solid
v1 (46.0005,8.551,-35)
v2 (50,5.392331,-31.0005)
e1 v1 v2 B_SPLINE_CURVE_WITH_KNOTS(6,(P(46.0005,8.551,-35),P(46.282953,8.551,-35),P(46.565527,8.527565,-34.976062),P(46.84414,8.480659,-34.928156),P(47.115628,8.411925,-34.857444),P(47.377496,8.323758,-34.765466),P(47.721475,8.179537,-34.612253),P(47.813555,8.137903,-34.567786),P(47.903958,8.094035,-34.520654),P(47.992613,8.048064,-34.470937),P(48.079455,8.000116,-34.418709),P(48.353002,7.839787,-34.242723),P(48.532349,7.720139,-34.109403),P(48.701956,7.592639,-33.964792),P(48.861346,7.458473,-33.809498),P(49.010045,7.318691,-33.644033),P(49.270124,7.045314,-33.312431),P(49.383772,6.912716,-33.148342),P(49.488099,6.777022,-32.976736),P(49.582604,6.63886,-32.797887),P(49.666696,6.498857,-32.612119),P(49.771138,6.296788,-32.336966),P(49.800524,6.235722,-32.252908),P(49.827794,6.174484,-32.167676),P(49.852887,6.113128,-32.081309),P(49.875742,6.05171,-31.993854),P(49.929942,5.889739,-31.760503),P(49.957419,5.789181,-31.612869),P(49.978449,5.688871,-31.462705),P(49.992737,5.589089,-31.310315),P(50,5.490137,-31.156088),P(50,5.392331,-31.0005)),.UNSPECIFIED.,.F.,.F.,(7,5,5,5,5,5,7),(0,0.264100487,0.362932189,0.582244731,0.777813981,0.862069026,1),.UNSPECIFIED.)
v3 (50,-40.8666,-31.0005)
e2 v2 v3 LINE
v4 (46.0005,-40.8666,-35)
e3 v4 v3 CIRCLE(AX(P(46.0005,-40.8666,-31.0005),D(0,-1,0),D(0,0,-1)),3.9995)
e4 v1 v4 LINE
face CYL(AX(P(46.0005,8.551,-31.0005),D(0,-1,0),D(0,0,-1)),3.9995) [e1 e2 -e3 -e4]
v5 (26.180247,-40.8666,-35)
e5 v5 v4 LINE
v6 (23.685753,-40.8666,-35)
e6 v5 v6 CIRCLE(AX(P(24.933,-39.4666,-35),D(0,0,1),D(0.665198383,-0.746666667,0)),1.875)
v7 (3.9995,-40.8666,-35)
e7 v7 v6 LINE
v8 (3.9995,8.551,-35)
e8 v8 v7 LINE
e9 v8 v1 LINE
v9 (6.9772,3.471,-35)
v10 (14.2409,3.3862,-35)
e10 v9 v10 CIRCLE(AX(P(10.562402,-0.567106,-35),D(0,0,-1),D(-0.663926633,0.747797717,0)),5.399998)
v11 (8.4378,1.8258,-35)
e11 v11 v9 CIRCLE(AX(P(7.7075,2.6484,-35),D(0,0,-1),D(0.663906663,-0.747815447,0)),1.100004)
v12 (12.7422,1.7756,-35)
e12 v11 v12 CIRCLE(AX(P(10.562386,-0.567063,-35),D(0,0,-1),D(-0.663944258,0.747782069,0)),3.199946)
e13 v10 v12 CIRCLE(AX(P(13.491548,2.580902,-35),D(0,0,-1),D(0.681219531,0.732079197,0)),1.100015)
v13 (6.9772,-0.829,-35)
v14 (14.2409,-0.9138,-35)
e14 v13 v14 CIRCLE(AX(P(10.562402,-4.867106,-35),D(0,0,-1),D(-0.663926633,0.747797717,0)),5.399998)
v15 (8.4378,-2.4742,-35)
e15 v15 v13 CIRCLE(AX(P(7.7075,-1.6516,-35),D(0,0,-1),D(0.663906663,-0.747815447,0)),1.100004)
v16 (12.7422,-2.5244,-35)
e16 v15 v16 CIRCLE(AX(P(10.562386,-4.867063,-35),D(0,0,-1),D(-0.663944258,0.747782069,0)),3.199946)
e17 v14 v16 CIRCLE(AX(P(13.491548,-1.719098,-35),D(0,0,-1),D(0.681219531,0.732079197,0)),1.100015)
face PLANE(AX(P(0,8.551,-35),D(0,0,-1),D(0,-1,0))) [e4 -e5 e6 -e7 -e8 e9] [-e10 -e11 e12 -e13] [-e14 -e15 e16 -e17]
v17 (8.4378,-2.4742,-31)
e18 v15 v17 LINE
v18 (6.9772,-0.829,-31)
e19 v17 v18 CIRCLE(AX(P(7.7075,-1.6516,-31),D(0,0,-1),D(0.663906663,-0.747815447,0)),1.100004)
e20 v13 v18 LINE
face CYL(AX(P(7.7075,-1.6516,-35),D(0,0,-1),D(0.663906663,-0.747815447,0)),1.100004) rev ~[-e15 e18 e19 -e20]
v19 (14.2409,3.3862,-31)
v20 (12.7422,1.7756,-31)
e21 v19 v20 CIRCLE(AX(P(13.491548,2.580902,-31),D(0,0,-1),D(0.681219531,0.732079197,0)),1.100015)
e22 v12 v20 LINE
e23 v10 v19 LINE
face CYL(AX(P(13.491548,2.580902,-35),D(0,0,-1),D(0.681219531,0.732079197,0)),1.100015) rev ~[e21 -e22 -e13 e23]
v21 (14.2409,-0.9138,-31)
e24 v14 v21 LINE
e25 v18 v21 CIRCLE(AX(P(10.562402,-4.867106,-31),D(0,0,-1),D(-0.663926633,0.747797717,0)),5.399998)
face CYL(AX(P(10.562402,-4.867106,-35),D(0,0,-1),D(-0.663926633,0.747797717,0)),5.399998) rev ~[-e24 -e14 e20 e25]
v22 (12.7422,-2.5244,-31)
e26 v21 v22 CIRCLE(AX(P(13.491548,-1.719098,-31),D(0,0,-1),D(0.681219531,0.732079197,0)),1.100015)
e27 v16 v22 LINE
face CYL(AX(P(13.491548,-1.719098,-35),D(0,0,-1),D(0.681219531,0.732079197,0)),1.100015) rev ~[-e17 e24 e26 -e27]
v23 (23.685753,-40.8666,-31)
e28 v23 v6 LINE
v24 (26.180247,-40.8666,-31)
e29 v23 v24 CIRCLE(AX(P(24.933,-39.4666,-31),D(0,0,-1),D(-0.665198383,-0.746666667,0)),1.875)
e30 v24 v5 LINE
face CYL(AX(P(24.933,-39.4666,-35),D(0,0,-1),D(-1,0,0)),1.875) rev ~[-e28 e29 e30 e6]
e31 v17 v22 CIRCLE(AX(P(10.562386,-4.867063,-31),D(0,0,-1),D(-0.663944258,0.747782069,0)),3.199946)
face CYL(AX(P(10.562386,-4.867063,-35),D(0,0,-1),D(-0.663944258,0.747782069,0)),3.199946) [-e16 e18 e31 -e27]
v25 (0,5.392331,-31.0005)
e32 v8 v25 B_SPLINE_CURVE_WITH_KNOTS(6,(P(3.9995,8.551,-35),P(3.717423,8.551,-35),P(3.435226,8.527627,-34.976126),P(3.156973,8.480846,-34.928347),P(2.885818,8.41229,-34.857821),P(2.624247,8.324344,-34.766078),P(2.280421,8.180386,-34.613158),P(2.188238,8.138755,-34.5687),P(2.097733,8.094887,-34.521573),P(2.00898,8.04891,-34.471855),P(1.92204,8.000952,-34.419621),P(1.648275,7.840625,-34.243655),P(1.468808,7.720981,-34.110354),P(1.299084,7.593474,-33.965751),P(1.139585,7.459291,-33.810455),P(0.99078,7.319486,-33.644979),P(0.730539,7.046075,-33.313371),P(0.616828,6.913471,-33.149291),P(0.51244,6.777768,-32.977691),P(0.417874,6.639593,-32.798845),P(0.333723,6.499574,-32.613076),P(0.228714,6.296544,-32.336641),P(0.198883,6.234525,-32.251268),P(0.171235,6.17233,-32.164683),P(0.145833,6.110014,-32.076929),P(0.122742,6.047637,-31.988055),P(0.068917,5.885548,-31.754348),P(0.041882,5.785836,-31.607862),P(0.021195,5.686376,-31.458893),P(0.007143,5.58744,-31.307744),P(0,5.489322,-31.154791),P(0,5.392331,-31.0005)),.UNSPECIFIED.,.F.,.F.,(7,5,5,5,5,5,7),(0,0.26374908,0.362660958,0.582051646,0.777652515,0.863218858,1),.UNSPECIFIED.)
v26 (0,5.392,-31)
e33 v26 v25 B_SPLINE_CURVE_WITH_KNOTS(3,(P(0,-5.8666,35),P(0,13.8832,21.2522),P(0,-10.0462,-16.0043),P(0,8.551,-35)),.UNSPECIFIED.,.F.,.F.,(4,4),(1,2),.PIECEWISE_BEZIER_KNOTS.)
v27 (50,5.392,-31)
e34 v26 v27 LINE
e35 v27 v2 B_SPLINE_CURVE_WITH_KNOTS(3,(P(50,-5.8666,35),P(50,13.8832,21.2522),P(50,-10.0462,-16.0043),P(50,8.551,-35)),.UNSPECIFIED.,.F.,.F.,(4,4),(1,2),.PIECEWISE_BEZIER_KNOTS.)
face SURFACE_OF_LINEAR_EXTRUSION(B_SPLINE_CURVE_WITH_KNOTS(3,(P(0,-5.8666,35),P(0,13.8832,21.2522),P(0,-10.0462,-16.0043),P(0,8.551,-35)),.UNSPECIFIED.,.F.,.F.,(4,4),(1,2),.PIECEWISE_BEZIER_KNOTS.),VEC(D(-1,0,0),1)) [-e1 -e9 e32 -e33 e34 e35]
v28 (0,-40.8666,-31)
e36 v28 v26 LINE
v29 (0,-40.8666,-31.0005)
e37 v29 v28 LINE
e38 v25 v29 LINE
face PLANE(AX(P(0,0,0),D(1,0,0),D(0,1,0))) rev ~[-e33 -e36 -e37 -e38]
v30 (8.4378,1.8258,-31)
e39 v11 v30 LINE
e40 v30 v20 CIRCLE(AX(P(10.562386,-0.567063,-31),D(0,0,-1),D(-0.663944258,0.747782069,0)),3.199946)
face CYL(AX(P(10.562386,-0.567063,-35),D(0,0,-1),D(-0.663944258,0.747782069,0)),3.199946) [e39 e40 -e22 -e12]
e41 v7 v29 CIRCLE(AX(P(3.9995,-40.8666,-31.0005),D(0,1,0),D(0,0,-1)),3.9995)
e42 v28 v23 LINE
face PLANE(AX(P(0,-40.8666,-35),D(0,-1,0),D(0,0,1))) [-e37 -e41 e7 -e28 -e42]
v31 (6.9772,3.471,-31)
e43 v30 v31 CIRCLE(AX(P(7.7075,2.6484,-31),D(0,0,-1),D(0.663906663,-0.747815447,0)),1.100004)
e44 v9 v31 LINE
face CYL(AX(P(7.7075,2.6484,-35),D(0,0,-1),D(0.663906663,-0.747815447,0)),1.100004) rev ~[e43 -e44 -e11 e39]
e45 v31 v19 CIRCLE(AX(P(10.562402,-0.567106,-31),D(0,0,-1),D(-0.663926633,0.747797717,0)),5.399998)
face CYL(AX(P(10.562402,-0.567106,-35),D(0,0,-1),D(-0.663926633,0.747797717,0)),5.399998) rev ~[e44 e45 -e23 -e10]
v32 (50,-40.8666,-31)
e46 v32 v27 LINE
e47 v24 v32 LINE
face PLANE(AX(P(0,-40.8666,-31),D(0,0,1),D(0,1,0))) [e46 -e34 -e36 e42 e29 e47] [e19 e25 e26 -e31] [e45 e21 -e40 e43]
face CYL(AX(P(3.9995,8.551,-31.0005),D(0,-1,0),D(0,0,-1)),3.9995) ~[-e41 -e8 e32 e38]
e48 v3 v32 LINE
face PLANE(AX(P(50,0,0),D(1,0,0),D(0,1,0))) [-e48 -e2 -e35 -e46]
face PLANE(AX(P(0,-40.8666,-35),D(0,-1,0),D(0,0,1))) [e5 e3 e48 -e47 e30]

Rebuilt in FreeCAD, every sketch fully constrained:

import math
import FreeCAD as App
import Part
import Sketcher

V = App.Vector


def edges_at(feature, points):
    """Names of the edges that pass closest to the given points."""
    edges = feature.Shape.Edges
    near = lambda p: min(range(len(edges)), key=lambda i: edges[i].distToShape(Part.Vertex(*p))[0])
    return sorted({f"Edge{near(p) + 1}" for p in points})

doc = App.newDocument("Part")
body = doc.addObject("PartDesign::Body", "Body")

sketch1 = body.newObject("Sketcher::SketchObject", "Sketch")
sketch1.AttachmentSupport = (doc.getObject("YZ_Plane"), [""])
sketch1.MapMode = "FlatFace"
sketch1.addGeometry(Part.BSplineCurve([V(5.392012, -30.999992, 0), V(6.275349, -32.40526, 0), V(7.320012, -33.742634, 0), V(8.551, -35, 0)], [4, 4], [1.933807866, 2], False, 3, [1, 1, 1, 1], False), False)
sketch1.addGeometry(Part.LineSegment(V(5.392, -31, 0), V(-40.8666, -31, 0)), False)
sketch1.addGeometry(Part.LineSegment(V(-40.8666, -31, 0), V(-40.8666, -35, 0)), False)
sketch1.addGeometry(Part.LineSegment(V(-40.8666, -35, 0), V(8.551, -35, 0)), False)
sketch1.addConstraint(Sketcher.Constraint("Block", 0))
sketch1.addConstraint(Sketcher.Constraint("Coincident", 0, 1, 1, 1))
sketch1.addConstraint(Sketcher.Constraint("Coincident", 1, 2, 2, 1))
sketch1.addConstraint(Sketcher.Constraint("Coincident", 2, 2, 3, 1))
sketch1.addConstraint(Sketcher.Constraint("Coincident", 3, 2, 0, 2))
sketch1.addConstraint(Sketcher.Constraint("Horizontal", 1))
sketch1.addConstraint(Sketcher.Constraint("Vertical", 2))
sketch1.addConstraint(Sketcher.Constraint("Horizontal", 3))
sketch1.addConstraint(Sketcher.Constraint("DistanceX", 1, 2, 1, 1, 46.2586))
pad1 = body.newObject("PartDesign::Pad", "Pad")
pad1.Profile = sketch1
pad1.Length = 50
doc.recompute()

fillet = body.newObject("PartDesign::Fillet", "Fillet")
fillet.Base = (pad1, edges_at(pad1, [(50, -16.158, -35), (0, -16.158, -35)]))
fillet.Radius = 4

sketch2 = body.newObject("Sketcher::SketchObject", "Sketch001")
sketch2.AttachmentSupport = (doc.getObject("XY_Plane"), [""])
sketch2.MapMode = "FlatFace"
sketch2.AttachmentOffset = App.Placement(V(0, 0, -35), App.Rotation())
sketch2.addGeometry(Part.Circle(V(24.9, -39.5, 0), V(0, 0, 1), 1.9), False)
sketch2.addGeometry(Part.ArcOfCircle(Part.Circle(V(7.7, 2.6, 0), V(0, 0, 1), 1.1), math.radians(132), math.radians(312)), False)
sketch2.addGeometry(Part.ArcOfCircle(Part.Circle(V(10.6, -0.6, 0), V(0, 0, 1), 5.4), math.radians(47), math.radians(132)), False)
sketch2.addGeometry(Part.ArcOfCircle(Part.Circle(V(13.5, 2.6, 0), V(0, 0, 1), 1.1), math.radians(-133), math.radians(47)), False)
sketch2.addGeometry(Part.ArcOfCircle(Part.Circle(V(10.6, -0.6, 0), V(0, 0, 1), 3.2), math.radians(47), math.radians(132)), False)
sketch2.addGeometry(Part.ArcOfCircle(Part.Circle(V(7.7, -1.7, 0), V(0, 0, 1), 1.1), math.radians(132), math.radians(312)), False)
sketch2.addGeometry(Part.ArcOfCircle(Part.Circle(V(10.6, -4.9, 0), V(0, 0, 1), 5.4), math.radians(47), math.radians(132)), False)
sketch2.addGeometry(Part.ArcOfCircle(Part.Circle(V(13.5, -1.7, 0), V(0, 0, 1), 1.1), math.radians(-133), math.radians(47)), False)
sketch2.addGeometry(Part.ArcOfCircle(Part.Circle(V(10.6, -4.9, 0), V(0, 0, 1), 3.2), math.radians(47), math.radians(132)), False)
sketch2.addConstraint(Sketcher.Constraint("Tangent", 1, 1, 2, 2))
sketch2.addConstraint(Sketcher.Constraint("Tangent", 2, 1, 3, 2))
sketch2.addConstraint(Sketcher.Constraint("Tangent", 3, 1, 4, 1))
sketch2.addConstraint(Sketcher.Constraint("Tangent", 4, 2, 1, 2))
sketch2.addConstraint(Sketcher.Constraint("Tangent", 5, 1, 6, 2))
sketch2.addConstraint(Sketcher.Constraint("Tangent", 6, 1, 7, 2))
sketch2.addConstraint(Sketcher.Constraint("Tangent", 7, 1, 8, 1))
sketch2.addConstraint(Sketcher.Constraint("Tangent", 8, 2, 5, 2))
sketch2.addConstraint(Sketcher.Constraint("Coincident", 4, 3, 2, 3))
sketch2.addConstraint(Sketcher.Constraint("Coincident", 8, 3, 6, 3))
sketch2.addConstraint(Sketcher.Constraint("Equal", 3, 5))
sketch2.addConstraint(Sketcher.Constraint("Equal", 2, 6))
sketch2.addConstraint(Sketcher.Constraint("Vertical", 1, 3, 5, 3))
sketch2.addConstraint(Sketcher.Constraint("Vertical", 4, 3, 6, 3))
sketch2.addConstraint(Sketcher.Constraint("Vertical", 3, 3, 7, 3))
sketch2.addConstraint(Sketcher.Constraint("Radius", 4, 3.2))
sketch2.addConstraint(Sketcher.Constraint("Diameter", 0, 3.75))
sketch2.addConstraint(Sketcher.Constraint("Radius", 1, 1.1))
sketch2.addConstraint(Sketcher.Constraint("DistanceY", 5, 3, 1, 3, 4.3))
sketch2.addConstraint(Sketcher.Constraint("DistanceY", 3, 3, 1, 1, 0.89))
sketch2.addConstraint(Sketcher.Constraint("DistanceX", -1, 1, 0, 3, 24.933))
sketch2.addConstraint(Sketcher.Constraint("DistanceY", 2, 3, -1, 1, 0.567))
sketch2.addConstraint(Sketcher.Constraint("DistanceY", -1, 1, 3, 3, 2.581))
sketch2.addConstraint(Sketcher.Constraint("DistanceX", -1, 1, 2, 1, 14.241))
sketch2.addConstraint(Sketcher.Constraint("DistanceY", 0, 3, 1, 3, 42.115))
pocket1 = body.newObject("PartDesign::Pocket", "Pocket")
pocket1.Profile = sketch2
pocket1.Length = 4
pocket1.Reversed = True

doc.recompute()
